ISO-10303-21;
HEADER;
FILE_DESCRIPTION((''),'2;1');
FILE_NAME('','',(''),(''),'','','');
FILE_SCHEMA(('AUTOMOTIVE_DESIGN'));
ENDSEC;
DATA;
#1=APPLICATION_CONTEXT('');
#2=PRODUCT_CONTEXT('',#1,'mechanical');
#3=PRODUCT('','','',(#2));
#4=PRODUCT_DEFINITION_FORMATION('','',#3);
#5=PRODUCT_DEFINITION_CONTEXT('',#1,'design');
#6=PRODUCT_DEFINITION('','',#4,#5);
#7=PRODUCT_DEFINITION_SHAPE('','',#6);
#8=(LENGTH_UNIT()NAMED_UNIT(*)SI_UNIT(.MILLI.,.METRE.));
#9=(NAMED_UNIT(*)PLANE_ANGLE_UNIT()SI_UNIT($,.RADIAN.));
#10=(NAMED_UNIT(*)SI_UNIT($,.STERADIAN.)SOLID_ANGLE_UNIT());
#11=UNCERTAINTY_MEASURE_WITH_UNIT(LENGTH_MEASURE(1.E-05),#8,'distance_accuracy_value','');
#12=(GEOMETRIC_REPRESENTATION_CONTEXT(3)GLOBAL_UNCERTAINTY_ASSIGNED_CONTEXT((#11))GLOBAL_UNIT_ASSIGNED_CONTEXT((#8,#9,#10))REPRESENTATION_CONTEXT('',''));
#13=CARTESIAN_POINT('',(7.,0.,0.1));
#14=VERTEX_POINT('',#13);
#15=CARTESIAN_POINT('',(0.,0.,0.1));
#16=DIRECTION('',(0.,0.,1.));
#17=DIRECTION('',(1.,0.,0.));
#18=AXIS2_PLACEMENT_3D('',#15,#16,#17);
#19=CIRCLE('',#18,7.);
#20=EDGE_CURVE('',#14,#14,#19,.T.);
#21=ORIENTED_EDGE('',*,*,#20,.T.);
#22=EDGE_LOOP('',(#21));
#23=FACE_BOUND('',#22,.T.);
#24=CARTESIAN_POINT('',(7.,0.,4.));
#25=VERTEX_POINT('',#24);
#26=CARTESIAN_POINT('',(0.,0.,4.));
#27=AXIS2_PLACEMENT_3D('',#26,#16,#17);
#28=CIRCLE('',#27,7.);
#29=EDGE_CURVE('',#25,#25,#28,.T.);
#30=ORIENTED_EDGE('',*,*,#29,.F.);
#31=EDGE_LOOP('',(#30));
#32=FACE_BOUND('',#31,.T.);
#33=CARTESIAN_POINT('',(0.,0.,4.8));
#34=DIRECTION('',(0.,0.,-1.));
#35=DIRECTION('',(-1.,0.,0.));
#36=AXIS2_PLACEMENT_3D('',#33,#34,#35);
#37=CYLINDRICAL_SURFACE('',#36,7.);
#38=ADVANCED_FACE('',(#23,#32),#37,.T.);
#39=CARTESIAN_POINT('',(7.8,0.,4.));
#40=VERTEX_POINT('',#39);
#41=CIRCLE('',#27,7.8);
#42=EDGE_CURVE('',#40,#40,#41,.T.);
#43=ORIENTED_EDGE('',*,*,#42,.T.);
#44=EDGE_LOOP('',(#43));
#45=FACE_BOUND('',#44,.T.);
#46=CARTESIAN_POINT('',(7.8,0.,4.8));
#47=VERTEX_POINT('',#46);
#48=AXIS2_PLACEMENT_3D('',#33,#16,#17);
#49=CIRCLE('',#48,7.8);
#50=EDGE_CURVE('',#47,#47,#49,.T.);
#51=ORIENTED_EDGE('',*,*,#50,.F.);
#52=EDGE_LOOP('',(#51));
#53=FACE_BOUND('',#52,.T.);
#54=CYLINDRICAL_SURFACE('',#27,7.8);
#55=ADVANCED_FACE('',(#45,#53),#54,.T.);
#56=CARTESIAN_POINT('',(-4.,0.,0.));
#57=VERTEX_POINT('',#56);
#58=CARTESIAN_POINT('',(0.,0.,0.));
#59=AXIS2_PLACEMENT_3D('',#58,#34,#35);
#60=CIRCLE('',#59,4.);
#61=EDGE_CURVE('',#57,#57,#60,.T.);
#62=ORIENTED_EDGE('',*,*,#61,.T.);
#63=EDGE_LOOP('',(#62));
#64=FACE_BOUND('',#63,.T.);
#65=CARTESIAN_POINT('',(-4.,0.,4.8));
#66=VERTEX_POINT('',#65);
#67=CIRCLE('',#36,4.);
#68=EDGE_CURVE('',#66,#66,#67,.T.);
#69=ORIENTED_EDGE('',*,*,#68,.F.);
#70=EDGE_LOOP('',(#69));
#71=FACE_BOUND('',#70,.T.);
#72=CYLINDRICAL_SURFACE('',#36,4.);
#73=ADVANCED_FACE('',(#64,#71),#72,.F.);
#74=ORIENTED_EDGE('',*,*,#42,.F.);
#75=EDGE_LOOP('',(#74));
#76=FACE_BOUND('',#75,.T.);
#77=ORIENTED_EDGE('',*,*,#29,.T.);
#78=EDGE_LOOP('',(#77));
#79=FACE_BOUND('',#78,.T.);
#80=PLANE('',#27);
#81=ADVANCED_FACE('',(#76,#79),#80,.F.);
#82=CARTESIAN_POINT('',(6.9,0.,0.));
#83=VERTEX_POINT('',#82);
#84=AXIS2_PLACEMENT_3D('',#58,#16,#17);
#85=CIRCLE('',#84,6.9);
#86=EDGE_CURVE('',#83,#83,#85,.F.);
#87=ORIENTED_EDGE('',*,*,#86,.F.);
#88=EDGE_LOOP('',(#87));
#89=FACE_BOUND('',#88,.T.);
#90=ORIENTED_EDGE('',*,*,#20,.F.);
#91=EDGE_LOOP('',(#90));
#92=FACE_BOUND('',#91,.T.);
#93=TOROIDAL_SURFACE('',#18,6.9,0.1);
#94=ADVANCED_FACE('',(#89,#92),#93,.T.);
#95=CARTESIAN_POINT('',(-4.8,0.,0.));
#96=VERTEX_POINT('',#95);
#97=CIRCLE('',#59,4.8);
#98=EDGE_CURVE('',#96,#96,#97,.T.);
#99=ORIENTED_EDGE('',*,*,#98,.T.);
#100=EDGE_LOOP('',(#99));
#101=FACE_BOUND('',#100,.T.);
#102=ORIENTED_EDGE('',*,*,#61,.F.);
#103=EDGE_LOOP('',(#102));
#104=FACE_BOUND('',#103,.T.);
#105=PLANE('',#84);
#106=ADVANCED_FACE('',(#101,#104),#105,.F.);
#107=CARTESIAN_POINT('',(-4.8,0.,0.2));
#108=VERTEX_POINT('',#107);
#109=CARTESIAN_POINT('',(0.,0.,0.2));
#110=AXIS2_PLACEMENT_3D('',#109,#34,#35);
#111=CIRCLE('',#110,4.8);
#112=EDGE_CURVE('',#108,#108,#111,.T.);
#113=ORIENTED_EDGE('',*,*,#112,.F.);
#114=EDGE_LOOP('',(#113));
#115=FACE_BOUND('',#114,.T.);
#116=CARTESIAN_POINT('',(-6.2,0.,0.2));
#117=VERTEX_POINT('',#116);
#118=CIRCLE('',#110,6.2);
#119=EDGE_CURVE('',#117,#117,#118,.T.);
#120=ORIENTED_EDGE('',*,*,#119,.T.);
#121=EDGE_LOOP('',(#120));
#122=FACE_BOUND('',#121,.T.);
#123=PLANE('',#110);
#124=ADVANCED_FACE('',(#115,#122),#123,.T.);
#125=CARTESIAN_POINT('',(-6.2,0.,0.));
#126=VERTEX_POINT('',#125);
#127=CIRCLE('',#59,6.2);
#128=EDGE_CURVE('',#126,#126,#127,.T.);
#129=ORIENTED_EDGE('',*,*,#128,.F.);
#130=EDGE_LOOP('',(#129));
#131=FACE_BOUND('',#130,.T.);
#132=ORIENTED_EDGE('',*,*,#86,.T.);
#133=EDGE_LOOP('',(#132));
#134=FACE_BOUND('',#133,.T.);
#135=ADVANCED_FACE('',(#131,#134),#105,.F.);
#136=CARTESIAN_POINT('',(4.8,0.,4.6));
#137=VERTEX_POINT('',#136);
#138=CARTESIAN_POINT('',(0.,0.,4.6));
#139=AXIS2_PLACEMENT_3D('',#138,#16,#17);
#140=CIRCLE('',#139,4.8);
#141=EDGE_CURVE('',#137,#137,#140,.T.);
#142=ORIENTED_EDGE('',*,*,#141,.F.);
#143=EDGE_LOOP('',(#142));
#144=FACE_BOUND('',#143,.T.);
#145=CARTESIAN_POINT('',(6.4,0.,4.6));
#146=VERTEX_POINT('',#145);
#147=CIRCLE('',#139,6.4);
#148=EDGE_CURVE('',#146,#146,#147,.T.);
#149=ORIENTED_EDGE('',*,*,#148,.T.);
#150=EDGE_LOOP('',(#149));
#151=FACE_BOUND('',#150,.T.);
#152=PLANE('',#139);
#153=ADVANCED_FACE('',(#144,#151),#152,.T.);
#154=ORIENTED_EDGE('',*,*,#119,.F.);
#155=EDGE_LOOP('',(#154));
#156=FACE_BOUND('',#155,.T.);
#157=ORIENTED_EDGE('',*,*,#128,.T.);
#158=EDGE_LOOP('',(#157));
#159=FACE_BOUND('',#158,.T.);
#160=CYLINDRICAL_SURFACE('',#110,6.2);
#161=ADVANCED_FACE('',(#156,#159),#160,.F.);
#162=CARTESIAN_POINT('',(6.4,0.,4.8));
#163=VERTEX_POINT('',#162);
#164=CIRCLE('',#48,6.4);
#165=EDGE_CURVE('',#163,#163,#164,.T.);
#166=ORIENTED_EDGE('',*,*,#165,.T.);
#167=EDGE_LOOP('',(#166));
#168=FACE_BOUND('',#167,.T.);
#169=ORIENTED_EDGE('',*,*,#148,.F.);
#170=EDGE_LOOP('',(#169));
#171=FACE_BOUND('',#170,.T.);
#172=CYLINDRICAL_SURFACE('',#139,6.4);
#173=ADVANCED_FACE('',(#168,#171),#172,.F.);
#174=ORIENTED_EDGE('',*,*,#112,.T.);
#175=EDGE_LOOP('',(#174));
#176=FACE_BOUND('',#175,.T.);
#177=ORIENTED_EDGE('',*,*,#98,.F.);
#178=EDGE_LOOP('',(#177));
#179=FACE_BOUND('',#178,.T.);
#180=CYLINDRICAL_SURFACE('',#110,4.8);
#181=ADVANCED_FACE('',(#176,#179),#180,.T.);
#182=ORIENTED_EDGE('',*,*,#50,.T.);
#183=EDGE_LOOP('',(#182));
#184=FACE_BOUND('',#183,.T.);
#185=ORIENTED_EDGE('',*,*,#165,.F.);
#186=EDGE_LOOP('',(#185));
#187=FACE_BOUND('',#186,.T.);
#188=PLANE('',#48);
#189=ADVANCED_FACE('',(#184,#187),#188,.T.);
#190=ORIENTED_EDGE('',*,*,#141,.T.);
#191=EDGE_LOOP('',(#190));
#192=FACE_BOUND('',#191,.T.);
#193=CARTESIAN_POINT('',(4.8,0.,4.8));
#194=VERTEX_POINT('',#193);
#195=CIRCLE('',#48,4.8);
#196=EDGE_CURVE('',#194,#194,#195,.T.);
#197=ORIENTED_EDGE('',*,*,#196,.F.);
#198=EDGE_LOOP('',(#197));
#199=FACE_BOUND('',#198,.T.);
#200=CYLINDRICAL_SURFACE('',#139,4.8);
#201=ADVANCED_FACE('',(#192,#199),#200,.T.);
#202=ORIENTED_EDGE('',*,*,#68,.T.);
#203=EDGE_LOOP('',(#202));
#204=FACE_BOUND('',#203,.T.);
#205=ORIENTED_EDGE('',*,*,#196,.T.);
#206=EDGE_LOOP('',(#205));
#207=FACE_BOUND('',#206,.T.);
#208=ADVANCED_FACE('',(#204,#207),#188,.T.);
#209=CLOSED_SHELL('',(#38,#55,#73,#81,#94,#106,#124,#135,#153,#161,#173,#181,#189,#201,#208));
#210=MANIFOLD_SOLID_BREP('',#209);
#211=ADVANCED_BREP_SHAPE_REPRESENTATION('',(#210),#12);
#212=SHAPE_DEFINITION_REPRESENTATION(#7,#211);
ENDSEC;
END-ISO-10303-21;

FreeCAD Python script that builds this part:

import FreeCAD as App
import Part
import Sketcher
from FreeCAD import Vector
Q = App.Units.Quantity


def edges_at(feature, points):
    """Names of the edges that pass closest to the given points."""
    edges = feature.Shape.Edges
    near = lambda p: min(range(len(edges)), key=lambda i: edges[i].distToShape(Part.Vertex(*p))[0])
    return sorted({f"Edge{near(p) + 1}" for p in points})

doc = App.newDocument("Part")
body = doc.addObject("PartDesign::Body", "Body")

# Sketch on XY plane
sketch1 = body.newObject("Sketcher::SketchObject", "Sketch")
sketch1.AttachmentSupport = (doc.getObject("XY_Plane"), [""])
sketch1.MapMode = "FlatFace"
sketch1.addGeometry(Part.Circle(Vector(0, 0, 0), Vector(0, 0, 1), 7), False)
sketch1.addConstraint([
    Sketcher.Constraint("Coincident", 0, 3, -1, 1),
    Sketcher.Constraint("Diameter", 0, Q("14 mm")),
])
pad1 = body.newObject("PartDesign::Pad", "Pad")
pad1.Profile = sketch1
pad1.Length = 4.8

# Sketch on XY plane
sketch2 = body.newObject("Sketcher::SketchObject", "Sketch001")
sketch2.AttachmentSupport = (doc.getObject("XY_Plane"), [""])
sketch2.MapMode = "FlatFace"
sketch2.AttachmentOffset = App.Placement(Vector(0, 0, 4.8), App.Rotation())
sketch2.addGeometry(Part.Circle(Vector(0, 0, 0), Vector(0, 0, 1), 8), False)
sketch2.addConstraint([
    Sketcher.Constraint("Coincident", 0, 3, -1, 1),
    Sketcher.Constraint("Diameter", 0, Q("15.6 mm")),
])
pad2 = body.newObject("PartDesign::Pad", "Pad001")
pad2.Profile = sketch2
pad2.Length = 0.8
pad2.Reversed = True

# Sketch on XY plane
sketch3 = body.newObject("Sketcher::SketchObject", "Sketch002")
sketch3.AttachmentSupport = (doc.getObject("XY_Plane"), [""])
sketch3.MapMode = "FlatFace"
sketch3.addGeometry(Part.Circle(Vector(0, 0, 0), Vector(0, 0, 1), 4), False)
sketch3.addConstraint([
    Sketcher.Constraint("Coincident", 0, 3, -1, 1),
    Sketcher.Constraint("Diameter", 0, Q("8 mm")),
])
pocket1 = body.newObject("PartDesign::Pocket", "Pocket")
pocket1.Profile = sketch3
pocket1.Type = "ThroughAll"
pocket1.Reversed = True

# Sketch on XY plane
sketch4 = body.newObject("Sketcher::SketchObject", "Sketch003")
sketch4.AttachmentSupport = (doc.getObject("XY_Plane"), [""])
sketch4.MapMode = "FlatFace"
sketch4.addGeometry([
    Part.Circle(Vector(0, 0, 0), Vector(0, 0, 1), 6.2),
    Part.Circle(Vector(0, 0, 0), Vector(0, 0, 1), 4.8),
], False)
sketch4.addConstraint([
    Sketcher.Constraint("Coincident", 0, 3, -1, 1),
    Sketcher.Constraint("Coincident", 1, 3, -1, 1),
    Sketcher.Constraint("Diameter", 0, Q("12.4 mm")),
    Sketcher.Constraint("Diameter", 1, Q("9.6 mm")),
])
pocket2 = body.newObject("PartDesign::Pocket", "Pocket001")
pocket2.Profile = sketch4
pocket2.Length = 0.2
pocket2.Reversed = True

# Sketch on XY plane
sketch5 = body.newObject("Sketcher::SketchObject", "Sketch004")
sketch5.AttachmentSupport = (doc.getObject("XY_Plane"), [""])
sketch5.MapMode = "FlatFace"
sketch5.AttachmentOffset = App.Placement(Vector(0, 0, 4.8), App.Rotation())
sketch5.addGeometry([
    Part.Circle(Vector(0, 0, 0), Vector(0, 0, 1), 6.4),
    Part.Circle(Vector(0, 0, 0), Vector(0, 0, 1), 4.8),
], False)
sketch5.addConstraint([
    Sketcher.Constraint("Coincident", 0, 3, -1, 1),
    Sketcher.Constraint("Coincident", 1, 3, -1, 1),
    Sketcher.Constraint("Diameter", 0, Q("12.8 mm")),
    Sketcher.Constraint("Diameter", 1, Q("9.6 mm")),
])
pocket3 = body.newObject("PartDesign::Pocket", "Pocket002")
pocket3.Profile = sketch5
pocket3.Length = 0.2
doc.recompute()

fillet = body.newObject("PartDesign::Fillet", "Fillet")
fillet.Base = (pocket3, edges_at(pocket3, [(-7, 0, 0)]))
fillet.Radius = 0.1

doc.recompute()
